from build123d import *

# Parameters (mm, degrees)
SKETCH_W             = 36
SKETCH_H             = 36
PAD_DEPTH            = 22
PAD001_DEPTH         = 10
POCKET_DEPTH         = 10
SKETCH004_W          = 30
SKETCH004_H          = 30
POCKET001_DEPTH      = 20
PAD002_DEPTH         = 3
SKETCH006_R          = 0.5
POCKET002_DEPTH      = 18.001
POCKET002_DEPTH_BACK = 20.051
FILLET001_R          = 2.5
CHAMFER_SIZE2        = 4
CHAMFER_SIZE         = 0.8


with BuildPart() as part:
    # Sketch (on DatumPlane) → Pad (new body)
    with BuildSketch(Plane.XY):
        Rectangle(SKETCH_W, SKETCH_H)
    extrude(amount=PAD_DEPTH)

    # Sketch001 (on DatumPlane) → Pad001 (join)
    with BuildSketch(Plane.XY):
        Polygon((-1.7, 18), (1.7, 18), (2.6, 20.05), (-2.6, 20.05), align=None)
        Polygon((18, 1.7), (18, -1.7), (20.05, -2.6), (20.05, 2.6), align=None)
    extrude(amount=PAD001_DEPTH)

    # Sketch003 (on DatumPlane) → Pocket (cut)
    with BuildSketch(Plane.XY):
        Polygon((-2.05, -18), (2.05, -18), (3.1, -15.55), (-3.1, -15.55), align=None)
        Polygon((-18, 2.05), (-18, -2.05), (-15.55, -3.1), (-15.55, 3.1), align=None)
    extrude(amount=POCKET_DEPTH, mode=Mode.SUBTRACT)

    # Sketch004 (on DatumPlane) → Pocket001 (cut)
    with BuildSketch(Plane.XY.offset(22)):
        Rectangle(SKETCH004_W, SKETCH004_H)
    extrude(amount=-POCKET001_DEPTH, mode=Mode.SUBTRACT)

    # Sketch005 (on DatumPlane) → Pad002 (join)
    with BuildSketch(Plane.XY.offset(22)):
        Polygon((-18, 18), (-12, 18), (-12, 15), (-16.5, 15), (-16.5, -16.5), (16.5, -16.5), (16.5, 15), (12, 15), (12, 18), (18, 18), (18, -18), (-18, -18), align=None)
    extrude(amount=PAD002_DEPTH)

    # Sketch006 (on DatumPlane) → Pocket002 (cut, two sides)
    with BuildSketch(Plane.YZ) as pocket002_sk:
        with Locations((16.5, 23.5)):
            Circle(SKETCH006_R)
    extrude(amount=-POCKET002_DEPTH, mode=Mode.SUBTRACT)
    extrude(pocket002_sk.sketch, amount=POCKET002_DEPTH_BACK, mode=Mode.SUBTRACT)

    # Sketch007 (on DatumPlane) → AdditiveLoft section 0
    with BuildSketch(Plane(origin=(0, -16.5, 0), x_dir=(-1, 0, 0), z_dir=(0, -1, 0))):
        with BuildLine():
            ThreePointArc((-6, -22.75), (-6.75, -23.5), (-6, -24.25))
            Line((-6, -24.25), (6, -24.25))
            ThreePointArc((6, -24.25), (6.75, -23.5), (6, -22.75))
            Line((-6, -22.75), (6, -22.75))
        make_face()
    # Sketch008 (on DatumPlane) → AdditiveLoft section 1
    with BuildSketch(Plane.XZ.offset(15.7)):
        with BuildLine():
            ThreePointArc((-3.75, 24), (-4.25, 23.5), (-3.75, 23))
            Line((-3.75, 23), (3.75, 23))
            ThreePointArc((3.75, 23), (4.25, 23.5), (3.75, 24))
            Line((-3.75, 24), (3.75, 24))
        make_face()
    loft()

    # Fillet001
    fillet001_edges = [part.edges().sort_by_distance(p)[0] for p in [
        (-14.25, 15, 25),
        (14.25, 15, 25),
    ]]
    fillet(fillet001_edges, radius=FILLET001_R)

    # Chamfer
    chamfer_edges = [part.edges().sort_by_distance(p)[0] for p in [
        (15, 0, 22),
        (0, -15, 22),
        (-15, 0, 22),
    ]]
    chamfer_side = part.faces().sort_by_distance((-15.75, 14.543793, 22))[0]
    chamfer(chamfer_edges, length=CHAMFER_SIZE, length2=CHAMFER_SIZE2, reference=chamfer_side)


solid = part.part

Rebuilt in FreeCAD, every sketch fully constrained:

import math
import FreeCAD as App
import Part
import Sketcher

V = App.Vector
Q = App.Units.Quantity


def edges_at(feature, points):
    """Names of the edges that pass closest to the given points."""
    edges = feature.Shape.Edges
    near = lambda p: min(range(len(edges)), key=lambda i: edges[i].distToShape(Part.Vertex(*p))[0])
    return sorted({f"Edge{near(p) + 1}" for p in points})


def add_polygon(sketch, points):
    """Adds a closed chain of lines whose ends are joined by coincident constraints."""
    first, n = sketch.GeometryCount, len(points)
    for a, b in zip(points, points[1:] + points[:1]):
        sketch.addGeometry(Part.LineSegment(App.Vector(*a, 0), App.Vector(*b, 0)), False)
    for i in range(n):
        sketch.addConstraint(Sketcher.Constraint("Coincident", first + i, 2, first + (i + 1) % n, 1))

doc = App.newDocument("Part")
params = doc.addObject("Spreadsheet::Sheet", "Params")
for row, (alias, value) in enumerate([
    ("sketch1_width", "36 mm"),
    ("pad1_length", "22 mm"),
    ("sketch2_width", "3.4 mm"),
    ("sketch2_width2", "5.2 mm"),
    ("pad2_length", "10 mm"),
    ("sketch3_width", "4.1 mm"),
    ("sketch3_width2", "6.2 mm"),
    ("pocket1_length", "10 mm"),
    ("sketch4_width", "30 mm"),
    ("pocket2_length", "20 mm"),
    ("sketch5_width", "6 mm"),
    ("sketch5_width2", "36 mm"),
    ("sketch5_width3", "33 mm"),
    ("sketch5_height", "3 mm"),
    ("sketch5_height2", "31.5 mm"),
    ("pad3_length", "3 mm"),
    ("sketch6_diameter", "1 mm"),
    ("sketch7_width", "12 mm"),
    ("sketch7_radius", "0.75 mm"),
    ("sketch8_radius", "0.5 mm"),
    ("sketch8_width", "7.5 mm"),
    ("fillet_radius", "2.5 mm"),
    ("chamfer_size", "0.8 mm"),
    ("chamfer_size2", "4 mm"),
], start=1):
    params.set(f"A{row}", alias)
    params.set(f"B{row}", "=" + value)
    params.setAlias(f"B{row}", alias)

body = doc.addObject("PartDesign::Body", "Body")

# Sketch on XY plane
sketch1 = doc.addObject("Sketcher::SketchObject", "Sketch")
body.addObject(sketch1)
sketch1.AttachmentSupport = (doc.XY_Plane, [""])
sketch1.MapMode = "FlatFace"
add_polygon(sketch1, [(-18, 18), (-18, -18), (18, -18), (18, 18)])  # lines 0-3
sketch1.addConstraint([
    Sketcher.Constraint("Vertical", 0),
    Sketcher.Constraint("Horizontal", 1),
    Sketcher.Constraint("Vertical", 2),
    Sketcher.Constraint("Horizontal", 3),
    Sketcher.Constraint("Symmetric", 0, 2, 2, 2, -1, 1),
    Sketcher.Constraint("Equal", 3, 0),
    Sketcher.Constraint("DistanceX", 1, 1, 1, 2, Q("36 mm")),
])
sketch1.setExpression("Constraints[10]", "Params.sketch1_width")
pad1 = doc.addObject("PartDesign::Pad", "Pad")
body.addObject(pad1)
pad1.Profile = sketch1
pad1.setExpression("Length", "Params.pad1_length")

# Sketch on XY plane
sketch2 = doc.addObject("Sketcher::SketchObject", "Sketch001")
body.addObject(sketch2)
sketch2.AttachmentSupport = (doc.XY_Plane, [""])
sketch2.MapMode = "FlatFace"
add_polygon(sketch2, [(-1.7, 18), (1.7, 18), (2.6, 20.1), (-2.6, 20.1)])  # lines 0-3
add_polygon(sketch2, [(18, 1.7), (18, -1.7), (20.1, -2.6), (20.1, 2.6)])  # lines 4-7
sketch2.addConstraint([
    Sketcher.Constraint("Horizontal", 0),
    Sketcher.Constraint("Horizontal", 2),
    Sketcher.Constraint("Vertical", 4),
    Sketcher.Constraint("Vertical", 6),
    Sketcher.Constraint("Perpendicular", 1, 5),
    Sketcher.Constraint("Perpendicular", 3, 7),
    Sketcher.Constraint("Equal", 0, 4),
    Sketcher.Constraint("Equal", 2, 6),
    Sketcher.Constraint("Equal", 1, 3),
    Sketcher.Constraint("DistanceX", 0, 1, 0, 2, Q("3.4 mm")),
    Sketcher.Constraint("DistanceX", 2, 2, 2, 1, Q("5.2 mm")),
    Sketcher.Constraint("DistanceY", -1, 1, 0, 2, Q("18 mm")),
    Sketcher.Constraint("DistanceX", -1, 1, 4, 2, Q("18 mm")),
    Sketcher.Constraint("DistanceX", -1, 1, 0, 2, Q("1.7 mm")),
    Sketcher.Constraint("DistanceY", 4, 2, -1, 1, Q("1.7 mm")),
    Sketcher.Constraint("DistanceY", -1, 1, 1, 2, Q("20.05 mm")),
])
sketch2.setExpression("Constraints[17]", "Params.sketch2_width")
sketch2.setExpression("Constraints[18]", "Params.sketch2_width2")
pad2 = doc.addObject("PartDesign::Pad", "Pad001")
body.addObject(pad2)
pad2.Profile = sketch2
pad2.setExpression("Length", "Params.pad2_length")

# Sketch on XY plane
sketch3 = doc.addObject("Sketcher::SketchObject", "Sketch002")
body.addObject(sketch3)
sketch3.AttachmentSupport = (doc.XY_Plane, [""])
sketch3.MapMode = "FlatFace"
add_polygon(sketch3, [(-2, -18), (2, -18), (3.1, -15.6), (-3.1, -15.6)])  # lines 0-3
add_polygon(sketch3, [(-18, 2), (-18, -2), (-15.6, -3.1), (-15.6, 3.1)])  # lines 4-7
sketch3.addConstraint([
    Sketcher.Constraint("Horizontal", 0),
    Sketcher.Constraint("Horizontal", 2),
    Sketcher.Constraint("Vertical", 4),
    Sketcher.Constraint("Vertical", 6),
    Sketcher.Constraint("Perpendicular", 1, 5),
    Sketcher.Constraint("Perpendicular", 3, 7),
    Sketcher.Constraint("Equal", 0, 4),
    Sketcher.Constraint("Equal", 2, 6),
    Sketcher.Constraint("Equal", 1, 3),
    Sketcher.Constraint("DistanceX", 0, 1, 0, 2, Q("4.1 mm")),
    Sketcher.Constraint("DistanceX", 2, 2, 2, 1, Q("6.2 mm")),
    Sketcher.Constraint("DistanceY", 0, 2, -1, 1, Q("18 mm")),
    Sketcher.Constraint("DistanceX", 4, 2, -1, 1, Q("18 mm")),
    Sketcher.Constraint("DistanceX", -1, 1, 1, 2, Q("3.1 mm")),
    Sketcher.Constraint("DistanceY", 5, 2, -1, 1, Q("3.1 mm")),
    Sketcher.Constraint("DistanceY", 2, 2, 4, 2, Q("13.5 mm")),
])
sketch3.setExpression("Constraints[17]", "Params.sketch3_width")
sketch3.setExpression("Constraints[18]", "Params.sketch3_width2")
pocket1 = doc.addObject("PartDesign::Pocket", "Pocket")
body.addObject(pocket1)
pocket1.Profile = sketch3
pocket1.setExpression("Length", "Params.pocket1_length")
pocket1.Reversed = True

# Sketch on XY plane
sketch4 = doc.addObject("Sketcher::SketchObject", "Sketch003")
body.addObject(sketch4)
sketch4.AttachmentSupport = (doc.XY_Plane, [""])
sketch4.MapMode = "FlatFace"
sketch4.AttachmentOffset = App.Placement(V(0, 0, 22), App.Rotation())
add_polygon(sketch4, [(-15, 15), (-15, -15), (15, -15), (15, 15)])  # lines 0-3
sketch4.addConstraint([
    Sketcher.Constraint("Vertical", 0),
    Sketcher.Constraint("Horizontal", 1),
    Sketcher.Constraint("Vertical", 2),
    Sketcher.Constraint("Horizontal", 3),
    Sketcher.Constraint("Symmetric", 0, 2, 2, 2, -1, 1),
    Sketcher.Constraint("Equal", 3, 0),
    Sketcher.Constraint("DistanceX", 1, 1, 1, 2, Q("30 mm")),
])
sketch4.setExpression("Constraints[10]", "Params.sketch4_width")
pocket2 = doc.addObject("PartDesign::Pocket", "Pocket001")
body.addObject(pocket2)
pocket2.Profile = sketch4
pocket2.setExpression("Length", "Params.pocket2_length")

# Sketch on XY plane
sketch5 = doc.addObject("Sketcher::SketchObject", "Sketch004")
body.addObject(sketch5)
sketch5.AttachmentSupport = (doc.XY_Plane, [""])
sketch5.MapMode = "FlatFace"
sketch5.AttachmentOffset = App.Placement(V(0, 0, 22), App.Rotation())
add_polygon(sketch5, [(-12, 18), (-18, 18), (-18, -18), (18, -18), (18, 18), (12, 18), (12, 15), (16.5, 15), (16.5, -16.5), (-16.5, -16.5), (-16.5, 15), (-12, 15)])  # lines 0-11
sketch5.addConstraint([
    Sketcher.Constraint("Horizontal", 0),
    Sketcher.Constraint("Vertical", 1),
    Sketcher.Constraint("Horizontal", 2),
    Sketcher.Constraint("Vertical", 3),
    Sketcher.Constraint("Horizontal", 4),
    Sketcher.Constraint("Vertical", 5),
    Sketcher.Constraint("Horizontal", 6),
    Sketcher.Constraint("Vertical", 7),
    Sketcher.Constraint("Horizontal", 8),
    Sketcher.Constraint("Vertical", 9),
    Sketcher.Constraint("Horizontal", 10),
    Sketcher.Constraint("Vertical", 11),
    Sketcher.Constraint("Symmetric", 0, 2, 2, 2, -1, 1),
    Sketcher.Constraint("Symmetric", 6, 2, 9, 2, -2),
    Sketcher.Constraint("Symmetric", 4, 2, 11, 2, -2),
    Sketcher.Constraint("Equal", 2, 1),
    Sketcher.Constraint("DistanceX", 0, 2, 0, 1, Q("6 mm")),
    Sketcher.Constraint("DistanceX", 2, 1, 2, 2, Q("36 mm")),
    Sketcher.Constraint("DistanceX", 8, 2, 8, 1, Q("33 mm")),
    Sketcher.Constraint("DistanceY", 5, 2, 5, 1, Q("3 mm")),
    Sketcher.Constraint("DistanceY", 7, 2, 7, 1, Q("31.5 mm")),
])
sketch5.setExpression("Constraints[28]", "Params.sketch5_width")
sketch5.setExpression("Constraints[29]", "Params.sketch5_width2")
sketch5.setExpression("Constraints[30]", "Params.sketch5_width3")
sketch5.setExpression("Constraints[31]", "Params.sketch5_height")
sketch5.setExpression("Constraints[32]", "Params.sketch5_height2")
pad3 = doc.addObject("PartDesign::Pad", "Pad002")
body.addObject(pad3)
pad3.Profile = sketch5
pad3.setExpression("Length", "Params.pad3_length")

# Sketch on YZ plane
sketch6 = doc.addObject("Sketcher::SketchObject", "Sketch005")
body.addObject(sketch6)
sketch6.AttachmentSupport = (doc.YZ_Plane, [""])
sketch6.MapMode = "FlatFace"
sketch6.addGeometry(Part.Circle(V(16.5, 23.5, 0), V(0, 0, 1), 0.5), False)
sketch6.addConstraint([
    Sketcher.Constraint("Diameter", 0, Q("1 mm")),
    Sketcher.Constraint("DistanceX", -1, 1, 0, 3, Q("16.5 mm")),
    Sketcher.Constraint("DistanceY", -1, 1, 0, 3, Q("23.5 mm")),
])
sketch6.setExpression("Constraints[0]", "Params.sketch6_diameter")
pocket3 = doc.addObject("PartDesign::Pocket", "Pocket002")
body.addObject(pocket3)
pocket3.Profile = sketch6
pocket3.Type = "ThroughAll"
pocket3.Midplane = True

# Sketch on XZ plane
sketch7 = doc.addObject("Sketcher::SketchObject", "Sketch006")
body.addObject(sketch7)
sketch7.AttachmentSupport = (doc.XZ_Plane, [""])
sketch7.MapMode = "FlatFace"
sketch7.AttachmentOffset = App.Placement(V(0, 0, 16.5), App.Rotation())
sketch7.addGeometry([
    Part.ArcOfCircle(Part.Circle(V(6, 23.5, 0), V(0, 0, 1), 0.8), math.radians(-90), math.radians(90)),
    Part.LineSegment(V(6, 24.2, 0), V(-6, 24.2, 0)),
    Part.ArcOfCircle(Part.Circle(V(-6, 23.5, 0), V(0, 0, 1), 0.8), math.radians(90), math.radians(270)),
    Part.LineSegment(V(-6, 22.8, 0), V(6, 22.8, 0)),
], False)
sketch7.addConstraint([
    Sketcher.Constraint("Tangent", 0, 2, 1, 1),
    Sketcher.Constraint("Tangent", 1, 2, 2, 1),
    Sketcher.Constraint("Tangent", 2, 2, 3, 1),
    Sketcher.Constraint("Tangent", 3, 2, 0, 1),
    Sketcher.Constraint("Horizontal", 1),
    Sketcher.Constraint("Horizontal", 3),
    Sketcher.Constraint("DistanceX", 1, 2, 1, 1, Q("12 mm")),
    Sketcher.Constraint("Radius", 0, Q("0.75 mm")),
    Sketcher.Constraint("DistanceX", -1, 1, 0, 3, Q("6 mm")),
    Sketcher.Constraint("DistanceY", -1, 1, 0, 3, Q("23.5 mm")),
])
sketch7.setExpression("Constraints[6]", "Params.sketch7_width")
sketch7.setExpression("Constraints[7]", "Params.sketch7_radius")

# Sketch on XZ plane
sketch8 = doc.addObject("Sketcher::SketchObject", "Sketch007")
body.addObject(sketch8)
sketch8.AttachmentSupport = (doc.XZ_Plane, [""])
sketch8.MapMode = "FlatFace"
sketch8.AttachmentOffset = App.Placement(V(0, 0, 15.7), App.Rotation())
sketch8.addGeometry([
    Part.ArcOfCircle(Part.Circle(V(-3.8, 23.5, 0), V(0, 0, 1), 0.5), math.radians(90), math.radians(270)),
    Part.LineSegment(V(-3.8, 23, 0), V(3.8, 23, 0)),
    Part.ArcOfCircle(Part.Circle(V(3.8, 23.5, 0), V(0, 0, 1), 0.5), math.radians(-90), math.radians(90)),
    Part.LineSegment(V(3.8, 24, 0), V(-3.8, 24, 0)),
], False)
sketch8.addConstraint([
    Sketcher.Constraint("Tangent", 0, 2, 1, 1),
    Sketcher.Constraint("Tangent", 1, 2, 2, 1),
    Sketcher.Constraint("Tangent", 2, 2, 3, 1),
    Sketcher.Constraint("Tangent", 3, 2, 0, 1),
    Sketcher.Constraint("Horizontal", 1),
    Sketcher.Constraint("Horizontal", 3),
    Sketcher.Constraint("Radius", 0, Q("0.5 mm")),
    Sketcher.Constraint("DistanceX", 1, 1, 1, 2, Q("7.5 mm")),
    Sketcher.Constraint("DistanceY", -1, 1, 0, 2, Q("23 mm")),
    Sketcher.Constraint("DistanceX", 0, 3, -1, 1, Q("3.75 mm")),
])
sketch8.setExpression("Constraints[6]", "Params.sketch8_radius")
sketch8.setExpression("Constraints[7]", "Params.sketch8_width")

additiveloft = doc.addObject("PartDesign::AdditiveLoft", "AdditiveLoft")
body.addObject(additiveloft)
additiveloft.Profile = sketch7
additiveloft.Sections = [sketch8]
doc.recompute()

fillet = doc.addObject("PartDesign::Fillet", "Fillet")
body.addObject(fillet)
fillet.Base = (additiveloft, edges_at(additiveloft, [(-14.25, 15, 25), (14.25, 15, 25)]))
fillet.setExpression("Radius", "Params.fillet_radius")
doc.recompute()

chamfer = doc.addObject("PartDesign::Chamfer", "Chamfer")
body.addObject(chamfer)
chamfer.Base = (fillet, edges_at(fillet, [(15, 0, 22), (0, -15, 22), (-15, 0, 22)]))
chamfer.ChamferType = "Two distances"
chamfer.setExpression("Size", "Params.chamfer_size")
chamfer.setExpression("Size2", "Params.chamfer_size2")

doc.recompute()
